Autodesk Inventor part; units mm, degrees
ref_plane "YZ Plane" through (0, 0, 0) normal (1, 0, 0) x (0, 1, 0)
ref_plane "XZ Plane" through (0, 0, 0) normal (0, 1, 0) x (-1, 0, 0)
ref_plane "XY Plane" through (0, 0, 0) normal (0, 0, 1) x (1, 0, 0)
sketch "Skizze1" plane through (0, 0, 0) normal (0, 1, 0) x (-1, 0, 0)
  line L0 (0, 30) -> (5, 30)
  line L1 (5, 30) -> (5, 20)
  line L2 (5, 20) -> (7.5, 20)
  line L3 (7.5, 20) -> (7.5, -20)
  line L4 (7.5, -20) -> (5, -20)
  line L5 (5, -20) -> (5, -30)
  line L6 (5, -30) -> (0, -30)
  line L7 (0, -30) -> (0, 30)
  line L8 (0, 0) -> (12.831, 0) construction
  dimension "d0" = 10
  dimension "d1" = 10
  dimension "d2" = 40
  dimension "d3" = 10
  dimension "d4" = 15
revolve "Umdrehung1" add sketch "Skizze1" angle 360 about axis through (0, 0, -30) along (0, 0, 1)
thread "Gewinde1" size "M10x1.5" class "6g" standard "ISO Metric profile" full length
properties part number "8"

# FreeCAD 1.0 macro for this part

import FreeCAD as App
import Part
import Sketcher
Q = App.Units.Quantity


def add_polygon(sketch, points):
    """Adds a closed chain of lines whose ends are joined by coincident constraints."""
    first, n = sketch.GeometryCount, len(points)
    for a, b in zip(points, points[1:] + points[:1]):
        sketch.addGeometry(Part.LineSegment(App.Vector(*a, 0), App.Vector(*b, 0)), False)
    for i in range(n):
        sketch.addConstraint(Sketcher.Constraint("Coincident", first + i, 2, first + (i + 1) % n, 1))

doc = App.newDocument("Part")
body = doc.addObject("PartDesign::Body", "Body")

# Sketch on XZ plane
sketch1 = body.newObject("Sketcher::SketchObject", "Sketch")
sketch1.AttachmentSupport = (doc.getObject("XZ_Plane"), [""])
sketch1.MapMode = "FlatFace"
add_polygon(sketch1, [(-5, 30), (0, 30), (0, -30), (-5, -30), (-5, -20), (-7.5, -20), (-7.5, 20), (-5, 20)])  # lines 0-7
sketch1.addConstraint([
    Sketcher.Constraint("Horizontal", 0),
    Sketcher.Constraint("Vertical", 1),
    Sketcher.Constraint("Horizontal", 2),
    Sketcher.Constraint("Vertical", 3),
    Sketcher.Constraint("Horizontal", 4),
    Sketcher.Constraint("Vertical", 5),
    Sketcher.Constraint("Horizontal", 6),
    Sketcher.Constraint("Vertical", 7),
    Sketcher.Constraint("Symmetric", 0, 2, 1, 2, -1, 1),
    Sketcher.Constraint("Symmetric", 3, 2, 6, 2, -1),
    Sketcher.Constraint("DistanceY", 3, 1, 3, 2, Q("10 mm")),
    Sketcher.Constraint("DistanceY", 5, 1, 5, 2, Q("40 mm")),
    Sketcher.Constraint("DistanceX", 0, 1, 0, 2, Q("5 mm")),
    Sketcher.Constraint("DistanceX", 4, 2, 4, 1, Q("2.5 mm")),
])
revolution = body.newObject("PartDesign::Revolution", "Revolution")
revolution.Profile = sketch1
revolution.ReferenceAxis = (sketch1, ["V_Axis"])
revolution.Angle = 360

doc.recompute()
